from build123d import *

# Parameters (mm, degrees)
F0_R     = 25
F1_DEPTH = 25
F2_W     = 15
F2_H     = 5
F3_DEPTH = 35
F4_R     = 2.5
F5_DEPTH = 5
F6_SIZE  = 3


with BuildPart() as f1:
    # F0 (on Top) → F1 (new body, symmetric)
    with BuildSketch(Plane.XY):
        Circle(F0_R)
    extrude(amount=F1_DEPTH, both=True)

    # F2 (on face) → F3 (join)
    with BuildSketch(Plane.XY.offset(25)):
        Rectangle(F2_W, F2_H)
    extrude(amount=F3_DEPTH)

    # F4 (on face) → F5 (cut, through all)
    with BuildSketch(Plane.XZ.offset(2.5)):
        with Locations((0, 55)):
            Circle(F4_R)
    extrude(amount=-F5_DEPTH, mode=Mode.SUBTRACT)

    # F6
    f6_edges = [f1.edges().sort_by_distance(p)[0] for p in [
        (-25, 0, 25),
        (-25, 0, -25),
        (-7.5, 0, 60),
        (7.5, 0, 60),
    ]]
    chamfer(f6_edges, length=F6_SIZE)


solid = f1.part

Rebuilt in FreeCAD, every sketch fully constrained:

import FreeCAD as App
import Part
import Sketcher


def edges_at(feature, points):
    """Names of the edges that pass closest to the given points."""
    edges = feature.Shape.Edges
    near = lambda p: min(range(len(edges)), key=lambda i: edges[i].distToShape(Part.Vertex(*p))[0])
    return sorted({f"Edge{near(p) + 1}" for p in points})


def add_polygon(sketch, points):
    """Adds a closed chain of lines whose ends are joined by coincident constraints."""
    first, n = sketch.GeometryCount, len(points)
    for a, b in zip(points, points[1:] + points[:1]):
        sketch.addGeometry(Part.LineSegment(App.Vector(*a, 0), App.Vector(*b, 0)), False)
    for i in range(n):
        sketch.addConstraint(Sketcher.Constraint("Coincident", first + i, 2, first + (i + 1) % n, 1))

doc = App.newDocument("Part")
params = doc.addObject("Spreadsheet::Sheet", "Params")
for row, (alias, value) in enumerate([
    ("sketch1_diameter", "50 mm"),
    ("pad1_length", "50 mm"),
    ("sketch2_width", "15 mm"),
    ("sketch2_height", "5 mm"),
    ("pad2_length", "35 mm"),
    ("sketch3_diameter", "5 mm"),
    ("chamfer_size", "3 mm"),
], start=1):
    params.set(f"A{row}", alias)
    params.set(f"B{row}", "=" + value)
    params.setAlias(f"B{row}", alias)

body = doc.addObject("PartDesign::Body", "Body")

# Sketch on XY plane
sketch1 = body.newObject("Sketcher::SketchObject", "Sketch")
sketch1.AttachmentSupport = (doc.getObject("XY_Plane"), [""])
sketch1.MapMode = "FlatFace"
sketch1.addGeometry(Part.Circle(App.Vector(0, 0, 0), App.Vector(0, 0, 1), 25), False)
sketch1.addConstraint([
    Sketcher.Constraint("Coincident", 0, 3, -1, 1),
    Sketcher.Constraint("Diameter", 0, 50.0),
])
sketch1.setExpression("Constraints[1]", "Params.sketch1_diameter")
pad1 = body.newObject("PartDesign::Pad", "Pad")
pad1.Profile = sketch1
pad1.setExpression("Length", "Params.pad1_length")
pad1.Midplane = True

# Sketch on XY plane
sketch2 = body.newObject("Sketcher::SketchObject", "Sketch001")
sketch2.AttachmentSupport = (doc.getObject("XY_Plane"), [""])
sketch2.MapMode = "FlatFace"
sketch2.AttachmentOffset = App.Placement(App.Vector(0, 0, 25), App.Rotation())
add_polygon(sketch2, [(-8, 2), (-8, -2), (8, -2), (8, 2)])  # lines 0-3
sketch2.addConstraint([
    Sketcher.Constraint("Vertical", 0),
    Sketcher.Constraint("Horizontal", 1),
    Sketcher.Constraint("Vertical", 2),
    Sketcher.Constraint("Horizontal", 3),
    Sketcher.Constraint("Symmetric", 0, 2, 2, 2, -1, 1),
    Sketcher.Constraint("DistanceX", 1, 1, 1, 2, 15.0),
    Sketcher.Constraint("DistanceY", 0, 2, 0, 1, 5.0),
])
sketch2.setExpression("Constraints[9]", "Params.sketch2_width")
sketch2.setExpression("Constraints[10]", "Params.sketch2_height")
pad2 = body.newObject("PartDesign::Pad", "Pad001")
pad2.Profile = sketch2
pad2.setExpression("Length", "Params.pad2_length")

# Sketch on XZ plane
sketch3 = body.newObject("Sketcher::SketchObject", "Sketch002")
sketch3.AttachmentSupport = (doc.getObject("XZ_Plane"), [""])
sketch3.MapMode = "FlatFace"
sketch3.AttachmentOffset = App.Placement(App.Vector(0, 0, 2.5), App.Rotation())
sketch3.addGeometry(Part.Circle(App.Vector(0, 55, 0), App.Vector(0, 0, 1), 2.5), False)
sketch3.addConstraint([
    Sketcher.Constraint("PointOnObject", 0, 3, -2),
    Sketcher.Constraint("Diameter", 0, 5.0),
    Sketcher.Constraint("DistanceY", -1, 1, 0, 3, 55.0),
])
sketch3.setExpression("Constraints[1]", "Params.sketch3_diameter")
pocket1 = body.newObject("PartDesign::Pocket", "Pocket")
pocket1.Profile = sketch3
pocket1.Type = "ThroughAll"
doc.recompute()

chamfer = body.newObject("PartDesign::Chamfer", "Chamfer")
chamfer.Base = (pocket1, edges_at(pocket1, [
    (-25, 0, 25),
    (-25, 0, -25),
    (-7.5, 0, 60),
    (7.5, 0, 60),
]))
chamfer.setExpression("Size", "Params.chamfer_size")

doc.recompute()
